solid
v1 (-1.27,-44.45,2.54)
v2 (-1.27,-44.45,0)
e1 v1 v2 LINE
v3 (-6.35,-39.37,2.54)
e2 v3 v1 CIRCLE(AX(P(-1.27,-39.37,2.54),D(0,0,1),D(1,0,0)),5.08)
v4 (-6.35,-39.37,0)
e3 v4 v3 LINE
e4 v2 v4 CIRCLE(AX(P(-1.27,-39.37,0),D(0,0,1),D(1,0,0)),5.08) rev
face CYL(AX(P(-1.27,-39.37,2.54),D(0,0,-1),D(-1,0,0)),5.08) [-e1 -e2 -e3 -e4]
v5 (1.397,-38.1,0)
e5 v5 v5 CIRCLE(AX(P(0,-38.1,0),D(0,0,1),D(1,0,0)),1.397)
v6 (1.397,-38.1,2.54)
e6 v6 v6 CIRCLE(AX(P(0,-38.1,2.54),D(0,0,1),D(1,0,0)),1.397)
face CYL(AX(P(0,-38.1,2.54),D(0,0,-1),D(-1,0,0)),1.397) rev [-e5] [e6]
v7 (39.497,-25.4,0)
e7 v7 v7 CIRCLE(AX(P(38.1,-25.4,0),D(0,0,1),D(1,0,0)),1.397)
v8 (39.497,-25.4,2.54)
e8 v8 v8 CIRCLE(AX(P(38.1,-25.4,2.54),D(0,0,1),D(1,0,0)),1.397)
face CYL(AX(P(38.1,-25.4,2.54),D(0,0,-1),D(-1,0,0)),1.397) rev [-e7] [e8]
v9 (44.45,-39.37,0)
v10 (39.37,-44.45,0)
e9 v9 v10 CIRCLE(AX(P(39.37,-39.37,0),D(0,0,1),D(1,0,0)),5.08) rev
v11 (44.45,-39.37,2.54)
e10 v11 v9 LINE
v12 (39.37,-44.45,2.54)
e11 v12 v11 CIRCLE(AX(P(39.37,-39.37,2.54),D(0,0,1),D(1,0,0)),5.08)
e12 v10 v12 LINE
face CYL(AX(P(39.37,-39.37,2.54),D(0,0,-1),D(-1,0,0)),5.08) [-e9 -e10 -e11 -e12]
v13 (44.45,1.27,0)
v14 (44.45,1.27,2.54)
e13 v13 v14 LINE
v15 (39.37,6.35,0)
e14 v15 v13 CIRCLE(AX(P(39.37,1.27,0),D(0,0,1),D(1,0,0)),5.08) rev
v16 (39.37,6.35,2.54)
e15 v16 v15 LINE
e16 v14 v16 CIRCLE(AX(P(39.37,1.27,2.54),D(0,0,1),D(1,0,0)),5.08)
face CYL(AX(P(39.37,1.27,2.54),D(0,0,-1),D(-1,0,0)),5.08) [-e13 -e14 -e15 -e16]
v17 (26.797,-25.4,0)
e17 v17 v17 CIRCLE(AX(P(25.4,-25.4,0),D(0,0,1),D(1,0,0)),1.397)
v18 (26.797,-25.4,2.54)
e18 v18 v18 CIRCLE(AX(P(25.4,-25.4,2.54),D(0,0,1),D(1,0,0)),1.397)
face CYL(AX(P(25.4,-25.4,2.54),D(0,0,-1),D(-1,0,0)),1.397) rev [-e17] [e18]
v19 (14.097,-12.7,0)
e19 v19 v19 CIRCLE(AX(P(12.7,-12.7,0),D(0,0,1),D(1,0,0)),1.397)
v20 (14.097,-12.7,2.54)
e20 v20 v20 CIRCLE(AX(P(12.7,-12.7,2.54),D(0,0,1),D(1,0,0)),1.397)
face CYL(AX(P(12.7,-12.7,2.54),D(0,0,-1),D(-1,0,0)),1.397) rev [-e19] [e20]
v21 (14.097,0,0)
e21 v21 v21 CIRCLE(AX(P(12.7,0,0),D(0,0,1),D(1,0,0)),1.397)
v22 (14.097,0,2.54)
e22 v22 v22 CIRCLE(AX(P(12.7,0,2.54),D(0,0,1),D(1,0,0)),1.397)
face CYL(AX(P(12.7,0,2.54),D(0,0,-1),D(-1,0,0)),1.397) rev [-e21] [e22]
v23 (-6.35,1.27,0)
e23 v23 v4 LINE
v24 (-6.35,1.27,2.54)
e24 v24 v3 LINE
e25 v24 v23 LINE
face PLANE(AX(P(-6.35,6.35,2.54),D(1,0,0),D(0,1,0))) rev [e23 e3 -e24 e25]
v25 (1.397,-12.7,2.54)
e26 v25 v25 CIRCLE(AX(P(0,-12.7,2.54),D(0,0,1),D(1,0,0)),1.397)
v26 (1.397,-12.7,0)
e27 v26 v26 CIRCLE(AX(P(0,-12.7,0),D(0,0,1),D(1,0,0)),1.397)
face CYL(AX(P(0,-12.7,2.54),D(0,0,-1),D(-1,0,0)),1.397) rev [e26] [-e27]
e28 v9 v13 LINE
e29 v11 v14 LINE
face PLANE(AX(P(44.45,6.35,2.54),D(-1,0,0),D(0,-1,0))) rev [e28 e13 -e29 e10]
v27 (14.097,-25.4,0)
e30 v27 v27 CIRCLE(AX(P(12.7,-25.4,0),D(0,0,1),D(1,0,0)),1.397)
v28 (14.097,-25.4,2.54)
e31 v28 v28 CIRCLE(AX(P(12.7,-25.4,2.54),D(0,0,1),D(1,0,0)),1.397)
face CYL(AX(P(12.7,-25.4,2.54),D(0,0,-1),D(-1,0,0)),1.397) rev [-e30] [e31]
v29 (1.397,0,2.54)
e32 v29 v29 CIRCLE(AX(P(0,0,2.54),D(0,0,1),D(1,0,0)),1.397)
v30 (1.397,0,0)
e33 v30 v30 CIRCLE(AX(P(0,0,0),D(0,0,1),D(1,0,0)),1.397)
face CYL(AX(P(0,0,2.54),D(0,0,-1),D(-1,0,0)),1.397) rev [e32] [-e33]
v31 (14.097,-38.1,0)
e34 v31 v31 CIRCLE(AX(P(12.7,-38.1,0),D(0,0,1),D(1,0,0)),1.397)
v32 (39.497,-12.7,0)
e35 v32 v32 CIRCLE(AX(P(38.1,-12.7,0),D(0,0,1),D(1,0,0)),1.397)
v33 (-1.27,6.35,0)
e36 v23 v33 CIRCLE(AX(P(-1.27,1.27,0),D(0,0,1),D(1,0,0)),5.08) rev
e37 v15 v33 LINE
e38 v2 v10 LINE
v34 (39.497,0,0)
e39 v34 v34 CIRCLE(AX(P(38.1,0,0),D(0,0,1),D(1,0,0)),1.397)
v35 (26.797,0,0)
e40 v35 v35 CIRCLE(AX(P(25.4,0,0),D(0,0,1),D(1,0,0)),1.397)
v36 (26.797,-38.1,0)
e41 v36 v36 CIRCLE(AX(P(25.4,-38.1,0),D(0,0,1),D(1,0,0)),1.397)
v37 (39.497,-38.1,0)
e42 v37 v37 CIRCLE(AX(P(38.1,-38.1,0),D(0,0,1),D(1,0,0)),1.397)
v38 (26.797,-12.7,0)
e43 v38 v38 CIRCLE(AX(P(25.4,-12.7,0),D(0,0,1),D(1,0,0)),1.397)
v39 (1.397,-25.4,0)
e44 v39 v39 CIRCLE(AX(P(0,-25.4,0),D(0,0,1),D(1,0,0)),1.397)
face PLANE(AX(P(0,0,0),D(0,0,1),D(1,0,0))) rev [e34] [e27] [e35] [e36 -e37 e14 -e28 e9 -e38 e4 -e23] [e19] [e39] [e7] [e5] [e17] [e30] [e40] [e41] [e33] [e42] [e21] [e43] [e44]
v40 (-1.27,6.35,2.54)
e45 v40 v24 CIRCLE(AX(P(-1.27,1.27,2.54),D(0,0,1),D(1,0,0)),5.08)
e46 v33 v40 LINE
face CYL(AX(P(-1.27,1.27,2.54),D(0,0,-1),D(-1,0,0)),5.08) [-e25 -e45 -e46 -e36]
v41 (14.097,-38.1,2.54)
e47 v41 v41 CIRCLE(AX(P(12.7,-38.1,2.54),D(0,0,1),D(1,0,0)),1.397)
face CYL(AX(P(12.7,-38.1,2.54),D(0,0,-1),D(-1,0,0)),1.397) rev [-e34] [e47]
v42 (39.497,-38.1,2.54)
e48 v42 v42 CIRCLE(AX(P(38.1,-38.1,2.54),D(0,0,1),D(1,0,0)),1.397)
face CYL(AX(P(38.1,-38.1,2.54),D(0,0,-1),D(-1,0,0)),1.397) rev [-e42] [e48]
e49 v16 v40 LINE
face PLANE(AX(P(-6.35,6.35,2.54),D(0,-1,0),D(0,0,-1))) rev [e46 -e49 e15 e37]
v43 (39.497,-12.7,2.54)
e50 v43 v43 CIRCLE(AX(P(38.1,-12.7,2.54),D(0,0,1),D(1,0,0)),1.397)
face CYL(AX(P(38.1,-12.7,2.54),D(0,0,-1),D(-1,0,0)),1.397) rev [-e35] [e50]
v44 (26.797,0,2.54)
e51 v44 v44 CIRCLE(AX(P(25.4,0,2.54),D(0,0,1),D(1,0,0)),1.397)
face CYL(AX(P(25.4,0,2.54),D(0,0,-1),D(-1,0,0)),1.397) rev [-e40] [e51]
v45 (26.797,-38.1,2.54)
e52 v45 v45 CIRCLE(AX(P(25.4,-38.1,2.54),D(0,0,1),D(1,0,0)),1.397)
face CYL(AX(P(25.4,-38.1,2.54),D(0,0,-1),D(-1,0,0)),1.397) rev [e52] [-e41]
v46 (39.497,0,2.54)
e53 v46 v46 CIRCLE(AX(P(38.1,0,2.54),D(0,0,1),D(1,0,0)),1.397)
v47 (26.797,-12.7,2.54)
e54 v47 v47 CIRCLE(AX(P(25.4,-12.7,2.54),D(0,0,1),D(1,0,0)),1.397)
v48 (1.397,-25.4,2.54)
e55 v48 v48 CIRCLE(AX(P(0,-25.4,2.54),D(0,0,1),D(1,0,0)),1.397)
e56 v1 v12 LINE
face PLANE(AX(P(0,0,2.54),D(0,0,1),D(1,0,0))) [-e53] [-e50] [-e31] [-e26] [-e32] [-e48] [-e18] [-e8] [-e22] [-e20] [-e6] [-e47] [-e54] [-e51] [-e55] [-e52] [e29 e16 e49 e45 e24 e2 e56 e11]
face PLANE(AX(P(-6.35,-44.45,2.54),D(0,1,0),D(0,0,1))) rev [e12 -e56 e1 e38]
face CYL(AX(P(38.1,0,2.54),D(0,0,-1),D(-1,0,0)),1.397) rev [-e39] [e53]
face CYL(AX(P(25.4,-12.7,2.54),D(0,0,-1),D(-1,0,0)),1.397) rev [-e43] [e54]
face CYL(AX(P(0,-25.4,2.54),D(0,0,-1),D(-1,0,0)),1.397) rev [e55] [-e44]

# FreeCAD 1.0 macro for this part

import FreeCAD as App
import Part
import Sketcher
Q = App.Units.Quantity


def edges_at(feature, points):
    """Names of the edges that pass closest to the given points."""
    edges = feature.Shape.Edges
    near = lambda p: min(range(len(edges)), key=lambda i: edges[i].distToShape(Part.Vertex(*p))[0])
    return sorted({f"Edge{near(p) + 1}" for p in points})


def add_polygon(sketch, points):
    """Adds a closed chain of lines whose ends are joined by coincident constraints."""
    first, n = sketch.GeometryCount, len(points)
    for a, b in zip(points, points[1:] + points[:1]):
        sketch.addGeometry(Part.LineSegment(App.Vector(*a, 0), App.Vector(*b, 0)), False)
    for i in range(n):
        sketch.addConstraint(Sketcher.Constraint("Coincident", first + i, 2, first + (i + 1) % n, 1))

doc = App.newDocument("Part")
body = doc.addObject("PartDesign::Body", "Body")

# Sketch on XY plane
sketch1 = doc.addObject("Sketcher::SketchObject", "Sketch")
body.addObject(sketch1)
sketch1.AttachmentSupport = (doc.XY_Plane, [""])
sketch1.MapMode = "FlatFace"
add_polygon(sketch1, [(-6.3, 6.3), (-6.3, -44.5), (44.5, -44.5), (44.5, 6.3)])  # lines 0-3
sketch1.addGeometry(Part.Circle(App.Vector(0, -38.1, 0), App.Vector(0, 0, 1), 1.4), False)  # 4
sketch1.addGeometry(Part.Circle(App.Vector(12.7, -38.1, 0), App.Vector(0, 0, 1), 1.4), False)  # 5
sketch1.addGeometry(Part.Circle(App.Vector(0, -25.4, 0), App.Vector(0, 0, 1), 1.4), False)  # 6
sketch1.addGeometry(Part.Circle(App.Vector(12.7, -25.4, 0), App.Vector(0, 0, 1), 1.4), False)  # 7
sketch1.addGeometry(Part.Circle(App.Vector(25.4, -38.1, 0), App.Vector(0, 0, 1), 1.4), False)  # 8
sketch1.addGeometry(Part.Circle(App.Vector(38.1, -38.1, 0), App.Vector(0, 0, 1), 1.4), False)  # 9
sketch1.addGeometry(Part.Circle(App.Vector(25.4, -25.4, 0), App.Vector(0, 0, 1), 1.4), False)  # 10
sketch1.addGeometry(Part.Circle(App.Vector(38.1, -25.4, 0), App.Vector(0, 0, 1), 1.4), False)  # 11
sketch1.addGeometry(Part.Circle(App.Vector(0, -12.7, 0), App.Vector(0, 0, 1), 1.4), False)  # 12
sketch1.addGeometry(Part.Circle(App.Vector(12.7, -12.7, 0), App.Vector(0, 0, 1), 1.4), False)  # 13
sketch1.addGeometry(Part.Circle(App.Vector(0, 0, 0), App.Vector(0, 0, 1), 1.4), False)  # 14
sketch1.addGeometry(Part.Circle(App.Vector(12.7, 0, 0), App.Vector(0, 0, 1), 1.4), False)  # 15
sketch1.addGeometry(Part.Circle(App.Vector(25.4, -12.7, 0), App.Vector(0, 0, 1), 1.4), False)  # 16
sketch1.addGeometry(Part.Circle(App.Vector(38.1, -12.7, 0), App.Vector(0, 0, 1), 1.4), False)  # 17
sketch1.addGeometry(Part.Circle(App.Vector(25.4, 0, 0), App.Vector(0, 0, 1), 1.4), False)  # 18
sketch1.addGeometry(Part.Circle(App.Vector(38.1, 0, 0), App.Vector(0, 0, 1), 1.4), False)  # 19
sketch1.addConstraint([
    Sketcher.Constraint("Vertical", 0),
    Sketcher.Constraint("Horizontal", 1),
    Sketcher.Constraint("Vertical", 2),
    Sketcher.Constraint("Horizontal", 3),
    Sketcher.Constraint("Coincident", 14, 3, -1, 1),
    Sketcher.Constraint("Equal", 4, 5),
    Sketcher.Constraint("Equal", 5, 6),
    Sketcher.Constraint("Equal", 6, 7),
    Sketcher.Constraint("Equal", 7, 8),
    Sketcher.Constraint("Equal", 8, 9),
    Sketcher.Constraint("Equal", 9, 10),
    Sketcher.Constraint("Equal", 10, 11),
    Sketcher.Constraint("Equal", 11, 12),
    Sketcher.Constraint("Equal", 12, 13),
    Sketcher.Constraint("Equal", 13, 14),
    Sketcher.Constraint("Equal", 14, 15),
    Sketcher.Constraint("Equal", 15, 16),
    Sketcher.Constraint("Equal", 16, 17),
    Sketcher.Constraint("Equal", 17, 18),
    Sketcher.Constraint("Equal", 18, 19),
    Sketcher.Constraint("PointOnObject", 4, 3, -2),
    Sketcher.Constraint("PointOnObject", 6, 3, -2),
    Sketcher.Constraint("PointOnObject", 12, 3, -2),
    Sketcher.Constraint("PointOnObject", 15, 3, -1),
    Sketcher.Constraint("PointOnObject", 18, 3, -1),
    Sketcher.Constraint("PointOnObject", 19, 3, -1),
    Sketcher.Constraint("Horizontal", 4, 3, 5, 3),
    Sketcher.Constraint("Horizontal", 6, 3, 7, 3),
    Sketcher.Constraint("Horizontal", 5, 3, 8, 3),
    Sketcher.Constraint("Horizontal", 8, 3, 9, 3),
    Sketcher.Constraint("Horizontal", 7, 3, 10, 3),
    Sketcher.Constraint("Horizontal", 10, 3, 11, 3),
    Sketcher.Constraint("Horizontal", 12, 3, 13, 3),
    Sketcher.Constraint("Horizontal", 13, 3, 16, 3),
    Sketcher.Constraint("Horizontal", 16, 3, 17, 3),
    Sketcher.Constraint("Vertical", 5, 3, 7, 3),
    Sketcher.Constraint("Vertical", 8, 3, 10, 3),
    Sketcher.Constraint("Vertical", 9, 3, 11, 3),
    Sketcher.Constraint("Vertical", 7, 3, 13, 3),
    Sketcher.Constraint("Vertical", 13, 3, 15, 3),
    Sketcher.Constraint("Vertical", 10, 3, 16, 3),
    Sketcher.Constraint("Vertical", 11, 3, 17, 3),
    Sketcher.Constraint("Vertical", 16, 3, 18, 3),
    Sketcher.Constraint("Vertical", 17, 3, 19, 3),
    Sketcher.Constraint("Equal", 3, 0),
    Sketcher.Constraint("Diameter", 4, Q("0.11 in")),
    Sketcher.Constraint("DistanceX", 1, 1, 1, 2, Q("2 in")),
    Sketcher.Constraint("DistanceY", 6, 3, -1, 1, Q("1 in")),
    Sketcher.Constraint("DistanceX", -1, 1, 8, 3, Q("1 in")),
    Sketcher.Constraint("DistanceX", 5, 3, 9, 3, Q("1 in")),
    Sketcher.Constraint("DistanceY", 4, 3, 12, 3, Q("1 in")),
    Sketcher.Constraint("DistanceY", 4, 3, -1, 1, Q("1.5 in")),
    Sketcher.Constraint("DistanceX", -1, 1, 5, 3, Q("0.5 in")),
    Sketcher.Constraint("DistanceX", 0, 2, -1, 1, Q("0.25 in")),
    Sketcher.Constraint("DistanceY", 0, 2, -1, 1, Q("1.75 in")),
])
pad1 = doc.addObject("PartDesign::Pad", "Pad")
body.addObject(pad1)
pad1.Profile = sketch1
pad1.Length = Q("0.1 in")
doc.recompute()

fillet = doc.addObject("PartDesign::Fillet", "Fillet")
body.addObject(fillet)
fillet.Base = (pad1, edges_at(pad1, [
    (-6.35, 6.35, 1.27),
    (44.45, 6.35, 1.27),
    (44.45, -44.45, 1.27),
    (-6.35, -44.45, 1.27),
]))
fillet.Radius = Q("0.2 in")

doc.recompute()
